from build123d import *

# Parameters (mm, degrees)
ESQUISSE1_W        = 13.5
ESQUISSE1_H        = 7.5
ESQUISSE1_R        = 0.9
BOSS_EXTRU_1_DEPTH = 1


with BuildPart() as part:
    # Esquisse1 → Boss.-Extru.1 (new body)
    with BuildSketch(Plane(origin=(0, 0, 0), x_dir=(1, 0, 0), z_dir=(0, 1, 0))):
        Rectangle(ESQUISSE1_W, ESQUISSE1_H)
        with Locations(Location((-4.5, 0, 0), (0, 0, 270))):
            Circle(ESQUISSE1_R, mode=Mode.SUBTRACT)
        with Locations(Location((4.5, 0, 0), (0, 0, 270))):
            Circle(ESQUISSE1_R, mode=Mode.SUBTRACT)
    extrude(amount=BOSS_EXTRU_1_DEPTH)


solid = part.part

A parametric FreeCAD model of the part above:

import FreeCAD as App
import Part
import Sketcher

V = App.Vector
Q = App.Units.Quantity

doc = App.newDocument("Part")
body = doc.addObject("PartDesign::Body", "Body")

sketch1 = doc.addObject("Sketcher::SketchObject", "Sketch")
body.addObject(sketch1)
sketch1.AttachmentSupport = (doc.XZ_Plane, [""])
sketch1.MapMode = "FlatFace"
sketch1.addGeometry([
    Part.LineSegment(V(-6.8, -3.8, 0), V(-6.8, 3.8, 0)),
    Part.LineSegment(V(-6.8, 3.8, 0), V(6.8, 3.8, 0)),
    Part.LineSegment(V(6.8, 3.8, 0), V(6.8, -3.8, 0)),
    Part.LineSegment(V(6.8, -3.8, 0), V(-6.8, -3.8, 0)),
    Part.Circle(V(-4.5, 0, 0), V(0, 0, 1), 0.9),
    Part.Circle(V(4.5, 0, 0), V(0, 0, 1), 0.9),
], False)
sketch1.addConstraint([
    Sketcher.Constraint("Coincident", 0, 2, 1, 1),
    Sketcher.Constraint("Coincident", 1, 2, 2, 1),
    Sketcher.Constraint("Coincident", 2, 2, 3, 1),
    Sketcher.Constraint("Coincident", 3, 2, 0, 1),
    Sketcher.Constraint("Vertical", 0),
    Sketcher.Constraint("Horizontal", 1),
    Sketcher.Constraint("Vertical", 2),
    Sketcher.Constraint("Horizontal", 3),
    Sketcher.Constraint("Equal", 4, 5),
    Sketcher.Constraint("Symmetric", 4, 3, 5, 3, -1, 1),
    Sketcher.Constraint("Symmetric", 0, 2, 2, 2, -1, 1),
    Sketcher.Constraint("PointOnObject", 4, 3, -1),
    Sketcher.Constraint("Diameter", 4, Q("1.8 mm")),
    Sketcher.Constraint("DistanceX", 1, 1, 1, 2, Q("13.5 mm")),
    Sketcher.Constraint("DistanceY", 0, 1, 0, 2, Q("7.5 mm")),
    Sketcher.Constraint("DistanceX", 4, 3, 5, 3, Q("9 mm")),
])
pad1 = doc.addObject("PartDesign::Pad", "Pad")
body.addObject(pad1)
pad1.Profile = sketch1
pad1.Length = 1
pad1.Reversed = True

doc.recompute()
